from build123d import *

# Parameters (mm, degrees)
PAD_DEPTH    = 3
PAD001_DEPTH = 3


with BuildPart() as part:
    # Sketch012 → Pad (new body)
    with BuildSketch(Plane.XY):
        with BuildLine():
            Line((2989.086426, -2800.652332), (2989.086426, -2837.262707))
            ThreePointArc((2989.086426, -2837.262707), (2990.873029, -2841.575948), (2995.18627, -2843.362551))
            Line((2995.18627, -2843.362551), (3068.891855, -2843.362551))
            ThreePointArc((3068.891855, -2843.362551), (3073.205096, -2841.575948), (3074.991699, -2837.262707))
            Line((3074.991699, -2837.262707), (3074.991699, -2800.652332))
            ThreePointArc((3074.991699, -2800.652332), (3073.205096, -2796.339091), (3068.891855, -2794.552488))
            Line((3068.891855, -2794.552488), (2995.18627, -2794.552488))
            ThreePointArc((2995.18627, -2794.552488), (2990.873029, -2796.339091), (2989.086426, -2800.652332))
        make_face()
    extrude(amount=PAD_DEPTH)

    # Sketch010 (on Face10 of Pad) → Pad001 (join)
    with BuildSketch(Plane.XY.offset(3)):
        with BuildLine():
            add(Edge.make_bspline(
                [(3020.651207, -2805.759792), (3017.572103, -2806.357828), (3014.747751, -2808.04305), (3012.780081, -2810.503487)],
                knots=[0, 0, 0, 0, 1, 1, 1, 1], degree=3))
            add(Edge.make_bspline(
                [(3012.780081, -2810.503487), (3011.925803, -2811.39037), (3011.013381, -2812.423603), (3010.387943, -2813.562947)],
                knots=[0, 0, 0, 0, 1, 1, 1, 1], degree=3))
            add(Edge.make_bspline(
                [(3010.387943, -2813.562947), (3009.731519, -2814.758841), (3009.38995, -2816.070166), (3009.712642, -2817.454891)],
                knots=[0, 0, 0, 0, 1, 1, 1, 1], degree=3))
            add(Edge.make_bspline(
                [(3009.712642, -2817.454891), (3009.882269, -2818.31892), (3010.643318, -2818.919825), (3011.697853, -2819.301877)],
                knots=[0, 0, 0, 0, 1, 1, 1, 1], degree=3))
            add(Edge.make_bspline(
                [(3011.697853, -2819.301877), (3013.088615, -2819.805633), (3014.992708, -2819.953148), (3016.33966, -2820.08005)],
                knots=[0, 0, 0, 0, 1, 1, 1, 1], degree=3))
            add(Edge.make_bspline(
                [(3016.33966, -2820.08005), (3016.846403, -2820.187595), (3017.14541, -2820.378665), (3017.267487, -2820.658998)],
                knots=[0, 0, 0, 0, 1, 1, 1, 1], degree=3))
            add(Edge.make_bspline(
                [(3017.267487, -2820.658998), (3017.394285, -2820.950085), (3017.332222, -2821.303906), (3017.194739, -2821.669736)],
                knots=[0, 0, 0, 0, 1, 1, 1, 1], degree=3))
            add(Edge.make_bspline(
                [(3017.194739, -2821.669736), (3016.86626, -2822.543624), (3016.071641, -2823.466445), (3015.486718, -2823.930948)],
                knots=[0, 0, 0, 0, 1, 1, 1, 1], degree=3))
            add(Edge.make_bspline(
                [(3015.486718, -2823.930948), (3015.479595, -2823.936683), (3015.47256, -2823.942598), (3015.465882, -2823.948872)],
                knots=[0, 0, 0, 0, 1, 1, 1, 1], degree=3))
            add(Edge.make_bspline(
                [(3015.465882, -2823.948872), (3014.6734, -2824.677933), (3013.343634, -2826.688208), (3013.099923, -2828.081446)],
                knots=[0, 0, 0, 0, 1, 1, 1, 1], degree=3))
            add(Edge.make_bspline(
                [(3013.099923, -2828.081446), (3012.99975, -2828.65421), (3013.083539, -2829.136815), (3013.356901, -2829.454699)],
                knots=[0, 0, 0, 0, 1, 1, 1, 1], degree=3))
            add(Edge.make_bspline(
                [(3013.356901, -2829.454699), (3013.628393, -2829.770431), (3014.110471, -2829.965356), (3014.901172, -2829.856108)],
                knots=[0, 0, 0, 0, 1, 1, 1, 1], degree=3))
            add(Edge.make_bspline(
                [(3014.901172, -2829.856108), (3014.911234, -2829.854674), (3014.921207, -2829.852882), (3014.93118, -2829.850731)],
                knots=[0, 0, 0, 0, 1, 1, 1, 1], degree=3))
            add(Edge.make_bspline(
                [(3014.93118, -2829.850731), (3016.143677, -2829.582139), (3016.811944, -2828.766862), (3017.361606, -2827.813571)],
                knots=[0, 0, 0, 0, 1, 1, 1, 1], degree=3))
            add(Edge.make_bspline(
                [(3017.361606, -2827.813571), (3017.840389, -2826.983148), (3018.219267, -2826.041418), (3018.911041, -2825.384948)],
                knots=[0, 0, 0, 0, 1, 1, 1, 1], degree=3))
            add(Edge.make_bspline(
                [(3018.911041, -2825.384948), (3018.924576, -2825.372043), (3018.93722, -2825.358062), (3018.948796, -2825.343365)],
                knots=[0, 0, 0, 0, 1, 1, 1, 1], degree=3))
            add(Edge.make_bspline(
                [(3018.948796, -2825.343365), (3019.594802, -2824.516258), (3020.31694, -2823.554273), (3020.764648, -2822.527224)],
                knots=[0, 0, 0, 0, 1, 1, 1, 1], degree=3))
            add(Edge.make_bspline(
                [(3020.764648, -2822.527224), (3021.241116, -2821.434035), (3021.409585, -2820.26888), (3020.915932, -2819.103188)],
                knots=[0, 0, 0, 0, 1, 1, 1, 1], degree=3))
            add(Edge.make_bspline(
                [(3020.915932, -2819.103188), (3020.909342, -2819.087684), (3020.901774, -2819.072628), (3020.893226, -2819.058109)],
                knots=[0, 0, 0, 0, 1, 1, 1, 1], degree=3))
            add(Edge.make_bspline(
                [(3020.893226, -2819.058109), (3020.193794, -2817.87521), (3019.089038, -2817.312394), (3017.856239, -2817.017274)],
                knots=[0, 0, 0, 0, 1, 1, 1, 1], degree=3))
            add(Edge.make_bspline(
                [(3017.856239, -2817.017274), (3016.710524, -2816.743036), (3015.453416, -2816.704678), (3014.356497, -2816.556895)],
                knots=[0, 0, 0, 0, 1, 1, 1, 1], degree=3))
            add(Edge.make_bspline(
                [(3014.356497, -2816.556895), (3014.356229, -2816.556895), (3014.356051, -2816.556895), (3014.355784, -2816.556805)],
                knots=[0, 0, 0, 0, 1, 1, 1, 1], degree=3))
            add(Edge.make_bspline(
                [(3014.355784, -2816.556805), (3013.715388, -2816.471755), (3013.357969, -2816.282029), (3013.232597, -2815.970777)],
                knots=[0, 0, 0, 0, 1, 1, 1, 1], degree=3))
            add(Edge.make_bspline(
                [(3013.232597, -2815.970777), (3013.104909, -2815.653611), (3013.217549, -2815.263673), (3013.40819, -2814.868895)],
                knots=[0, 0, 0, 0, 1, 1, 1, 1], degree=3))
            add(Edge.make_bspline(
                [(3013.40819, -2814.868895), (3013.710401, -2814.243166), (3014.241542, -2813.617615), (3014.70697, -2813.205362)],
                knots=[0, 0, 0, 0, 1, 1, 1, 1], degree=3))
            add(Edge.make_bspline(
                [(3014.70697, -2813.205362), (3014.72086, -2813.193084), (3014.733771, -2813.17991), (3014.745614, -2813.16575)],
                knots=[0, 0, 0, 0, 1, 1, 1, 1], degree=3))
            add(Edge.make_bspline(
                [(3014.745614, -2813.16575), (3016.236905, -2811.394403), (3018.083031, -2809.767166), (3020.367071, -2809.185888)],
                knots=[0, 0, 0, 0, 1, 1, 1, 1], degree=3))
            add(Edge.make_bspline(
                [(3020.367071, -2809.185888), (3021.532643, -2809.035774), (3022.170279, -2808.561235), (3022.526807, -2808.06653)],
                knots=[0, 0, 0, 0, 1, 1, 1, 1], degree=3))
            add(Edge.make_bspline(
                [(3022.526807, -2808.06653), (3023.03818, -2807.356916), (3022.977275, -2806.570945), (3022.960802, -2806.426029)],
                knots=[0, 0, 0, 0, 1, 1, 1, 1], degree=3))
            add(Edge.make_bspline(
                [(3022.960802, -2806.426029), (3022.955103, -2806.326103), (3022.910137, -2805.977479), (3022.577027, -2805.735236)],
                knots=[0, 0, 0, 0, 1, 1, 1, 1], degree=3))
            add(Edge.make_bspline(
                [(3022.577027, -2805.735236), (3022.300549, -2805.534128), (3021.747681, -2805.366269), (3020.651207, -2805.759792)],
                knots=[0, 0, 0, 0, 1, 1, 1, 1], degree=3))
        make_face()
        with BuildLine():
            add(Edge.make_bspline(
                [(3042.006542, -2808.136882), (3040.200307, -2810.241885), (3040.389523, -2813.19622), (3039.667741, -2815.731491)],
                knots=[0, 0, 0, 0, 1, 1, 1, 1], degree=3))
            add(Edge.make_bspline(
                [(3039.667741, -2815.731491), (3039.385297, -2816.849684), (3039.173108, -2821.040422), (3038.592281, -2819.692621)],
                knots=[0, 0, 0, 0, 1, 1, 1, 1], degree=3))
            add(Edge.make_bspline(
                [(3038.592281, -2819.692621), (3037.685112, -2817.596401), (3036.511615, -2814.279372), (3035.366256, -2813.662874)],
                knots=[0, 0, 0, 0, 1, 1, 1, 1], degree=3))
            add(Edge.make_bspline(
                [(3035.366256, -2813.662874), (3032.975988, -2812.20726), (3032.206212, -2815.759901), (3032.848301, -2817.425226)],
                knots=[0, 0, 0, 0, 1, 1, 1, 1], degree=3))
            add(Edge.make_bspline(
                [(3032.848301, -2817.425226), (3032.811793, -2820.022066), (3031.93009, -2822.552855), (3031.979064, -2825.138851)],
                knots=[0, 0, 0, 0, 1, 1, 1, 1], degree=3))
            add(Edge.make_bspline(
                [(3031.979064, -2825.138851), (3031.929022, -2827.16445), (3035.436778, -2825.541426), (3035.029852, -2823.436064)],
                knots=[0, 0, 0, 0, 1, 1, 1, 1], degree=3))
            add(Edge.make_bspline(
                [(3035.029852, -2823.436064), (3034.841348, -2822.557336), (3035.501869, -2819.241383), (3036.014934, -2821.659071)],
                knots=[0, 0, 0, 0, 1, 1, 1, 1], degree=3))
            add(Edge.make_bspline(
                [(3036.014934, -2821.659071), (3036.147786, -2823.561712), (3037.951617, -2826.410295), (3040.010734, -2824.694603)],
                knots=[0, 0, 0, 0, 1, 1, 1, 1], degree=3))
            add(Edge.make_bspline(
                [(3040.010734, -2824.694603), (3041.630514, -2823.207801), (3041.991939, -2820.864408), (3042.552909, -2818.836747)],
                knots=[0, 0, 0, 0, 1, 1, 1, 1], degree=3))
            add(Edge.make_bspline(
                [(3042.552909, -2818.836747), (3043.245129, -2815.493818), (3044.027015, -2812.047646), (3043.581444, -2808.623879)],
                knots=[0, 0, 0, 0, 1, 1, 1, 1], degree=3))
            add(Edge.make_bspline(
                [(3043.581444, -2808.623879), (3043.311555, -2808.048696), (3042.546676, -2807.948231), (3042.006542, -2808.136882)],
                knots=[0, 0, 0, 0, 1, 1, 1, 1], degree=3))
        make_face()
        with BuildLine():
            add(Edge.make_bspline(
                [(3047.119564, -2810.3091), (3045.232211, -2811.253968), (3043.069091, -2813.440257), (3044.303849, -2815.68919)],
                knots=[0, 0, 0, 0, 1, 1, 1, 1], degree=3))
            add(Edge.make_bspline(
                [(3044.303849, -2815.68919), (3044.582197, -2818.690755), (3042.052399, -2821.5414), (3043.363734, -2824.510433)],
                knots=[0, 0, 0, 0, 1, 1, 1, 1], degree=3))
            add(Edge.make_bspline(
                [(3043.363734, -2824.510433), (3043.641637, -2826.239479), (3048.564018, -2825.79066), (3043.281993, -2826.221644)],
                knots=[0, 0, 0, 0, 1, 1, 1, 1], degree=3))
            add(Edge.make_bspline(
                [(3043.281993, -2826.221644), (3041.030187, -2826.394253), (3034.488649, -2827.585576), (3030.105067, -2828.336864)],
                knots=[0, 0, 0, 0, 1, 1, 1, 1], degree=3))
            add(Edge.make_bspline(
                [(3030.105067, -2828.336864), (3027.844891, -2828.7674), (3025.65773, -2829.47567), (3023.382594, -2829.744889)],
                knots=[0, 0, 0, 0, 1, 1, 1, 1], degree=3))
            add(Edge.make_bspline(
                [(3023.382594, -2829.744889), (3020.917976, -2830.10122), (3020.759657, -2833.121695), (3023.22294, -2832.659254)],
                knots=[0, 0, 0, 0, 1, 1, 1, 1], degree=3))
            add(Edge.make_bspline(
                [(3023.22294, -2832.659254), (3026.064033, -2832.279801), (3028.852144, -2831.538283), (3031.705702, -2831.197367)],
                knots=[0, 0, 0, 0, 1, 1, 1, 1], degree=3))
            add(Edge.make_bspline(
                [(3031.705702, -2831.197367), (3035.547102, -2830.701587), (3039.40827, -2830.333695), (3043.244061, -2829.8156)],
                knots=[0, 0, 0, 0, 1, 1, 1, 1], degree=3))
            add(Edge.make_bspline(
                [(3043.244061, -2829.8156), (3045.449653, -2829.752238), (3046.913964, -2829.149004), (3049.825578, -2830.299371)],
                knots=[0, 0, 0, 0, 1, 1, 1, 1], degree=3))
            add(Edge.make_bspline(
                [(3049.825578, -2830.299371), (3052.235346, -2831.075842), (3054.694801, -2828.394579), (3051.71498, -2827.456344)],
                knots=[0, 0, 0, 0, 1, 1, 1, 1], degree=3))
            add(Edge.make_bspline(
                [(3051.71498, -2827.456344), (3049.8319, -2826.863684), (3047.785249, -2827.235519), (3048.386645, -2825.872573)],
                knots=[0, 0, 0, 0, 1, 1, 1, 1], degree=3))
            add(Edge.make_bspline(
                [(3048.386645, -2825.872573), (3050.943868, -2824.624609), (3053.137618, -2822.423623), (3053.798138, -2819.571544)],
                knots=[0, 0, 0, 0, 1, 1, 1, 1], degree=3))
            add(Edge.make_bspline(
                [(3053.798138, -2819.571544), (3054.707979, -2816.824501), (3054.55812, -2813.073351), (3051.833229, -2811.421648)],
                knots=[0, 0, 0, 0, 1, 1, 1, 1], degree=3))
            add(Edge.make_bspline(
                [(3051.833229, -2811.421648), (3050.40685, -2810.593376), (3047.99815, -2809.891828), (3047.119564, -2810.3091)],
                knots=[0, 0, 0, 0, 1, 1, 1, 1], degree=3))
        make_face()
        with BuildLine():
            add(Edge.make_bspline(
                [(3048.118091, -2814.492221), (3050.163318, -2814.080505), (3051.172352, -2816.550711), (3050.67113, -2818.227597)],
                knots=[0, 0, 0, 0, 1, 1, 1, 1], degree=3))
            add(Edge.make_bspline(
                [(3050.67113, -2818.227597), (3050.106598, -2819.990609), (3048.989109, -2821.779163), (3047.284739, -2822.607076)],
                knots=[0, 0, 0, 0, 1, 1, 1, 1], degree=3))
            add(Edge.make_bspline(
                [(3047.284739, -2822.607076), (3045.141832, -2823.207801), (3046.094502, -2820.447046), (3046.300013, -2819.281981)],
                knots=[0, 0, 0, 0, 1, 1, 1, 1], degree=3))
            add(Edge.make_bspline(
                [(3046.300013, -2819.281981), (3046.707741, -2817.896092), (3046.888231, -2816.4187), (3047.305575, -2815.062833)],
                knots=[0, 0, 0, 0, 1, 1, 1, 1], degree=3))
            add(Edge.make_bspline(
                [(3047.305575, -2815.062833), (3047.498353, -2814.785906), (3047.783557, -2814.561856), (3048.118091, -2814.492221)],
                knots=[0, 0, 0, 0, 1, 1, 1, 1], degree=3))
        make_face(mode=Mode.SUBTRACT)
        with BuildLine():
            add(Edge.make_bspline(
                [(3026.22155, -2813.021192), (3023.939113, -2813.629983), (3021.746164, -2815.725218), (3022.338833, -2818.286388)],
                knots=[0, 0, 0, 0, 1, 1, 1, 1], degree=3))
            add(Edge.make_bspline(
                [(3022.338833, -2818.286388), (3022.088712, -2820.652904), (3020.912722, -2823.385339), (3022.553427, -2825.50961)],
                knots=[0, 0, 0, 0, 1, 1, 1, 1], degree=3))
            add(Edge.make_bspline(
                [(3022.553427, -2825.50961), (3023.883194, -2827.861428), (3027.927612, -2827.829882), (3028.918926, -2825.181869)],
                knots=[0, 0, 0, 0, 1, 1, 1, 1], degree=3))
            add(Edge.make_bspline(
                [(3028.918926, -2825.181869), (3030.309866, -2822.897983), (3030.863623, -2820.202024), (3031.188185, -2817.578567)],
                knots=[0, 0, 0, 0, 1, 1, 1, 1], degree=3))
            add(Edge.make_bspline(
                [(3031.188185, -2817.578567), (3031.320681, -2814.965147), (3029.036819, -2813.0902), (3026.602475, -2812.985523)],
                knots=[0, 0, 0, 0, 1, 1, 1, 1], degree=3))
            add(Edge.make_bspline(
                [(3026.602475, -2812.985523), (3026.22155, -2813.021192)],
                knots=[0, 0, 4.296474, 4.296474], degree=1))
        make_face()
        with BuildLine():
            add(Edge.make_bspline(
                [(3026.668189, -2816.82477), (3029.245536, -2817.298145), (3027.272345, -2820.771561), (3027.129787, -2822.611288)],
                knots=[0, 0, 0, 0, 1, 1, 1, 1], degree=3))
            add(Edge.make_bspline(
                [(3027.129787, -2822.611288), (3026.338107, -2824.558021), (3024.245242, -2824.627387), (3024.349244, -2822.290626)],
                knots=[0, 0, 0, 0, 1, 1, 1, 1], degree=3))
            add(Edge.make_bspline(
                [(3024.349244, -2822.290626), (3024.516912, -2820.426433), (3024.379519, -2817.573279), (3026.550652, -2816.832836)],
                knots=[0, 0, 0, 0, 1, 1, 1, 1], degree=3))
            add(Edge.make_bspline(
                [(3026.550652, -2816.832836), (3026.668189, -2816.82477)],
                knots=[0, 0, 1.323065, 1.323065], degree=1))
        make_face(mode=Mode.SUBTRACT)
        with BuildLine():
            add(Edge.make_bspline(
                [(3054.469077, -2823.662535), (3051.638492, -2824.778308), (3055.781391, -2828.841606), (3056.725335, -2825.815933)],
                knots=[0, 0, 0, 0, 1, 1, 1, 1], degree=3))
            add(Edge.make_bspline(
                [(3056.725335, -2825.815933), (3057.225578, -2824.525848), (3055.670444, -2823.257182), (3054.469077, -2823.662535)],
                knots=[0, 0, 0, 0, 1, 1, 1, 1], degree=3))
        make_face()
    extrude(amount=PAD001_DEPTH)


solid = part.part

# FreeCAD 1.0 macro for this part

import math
import FreeCAD as App
import Part
import Sketcher

V = App.Vector
Q = App.Units.Quantity

doc = App.newDocument("Part")
body = doc.addObject("PartDesign::Body", "Body")

sketch1 = body.newObject("Sketcher::SketchObject", "Sketch")
sketch1.AttachmentSupport = (doc.getObject("XY_Plane"), [""])
sketch1.MapMode = "FlatFace"
sketch1.addGeometry([
    Part.LineSegment(V(2989, -2801, 0), V(2989, -2837, 0)),
    Part.ArcOfCircle(Part.Circle(V(2995, -2837, 0), V(0, 0, 1), 6), math.radians(-180), math.radians(-90)),
    Part.LineSegment(V(2995, -2843, 0), V(3069, -2843, 0)),
    Part.ArcOfCircle(Part.Circle(V(3069, -2837, 0), V(0, 0, 1), 6), math.radians(-90), math.radians(0)),
    Part.LineSegment(V(3075, -2837, 0), V(3075, -2801, 0)),
    Part.ArcOfCircle(Part.Circle(V(3069, -2801, 0), V(0, 0, 1), 6), math.radians(0), math.radians(90)),
    Part.LineSegment(V(3069, -2795, 0), V(2995, -2795, 0)),
    Part.ArcOfCircle(Part.Circle(V(2995, -2801, 0), V(0, 0, 1), 6), math.radians(90), math.radians(180)),
], False)
sketch1.addConstraint([
    Sketcher.Constraint("Tangent", 0, 2, 1, 1),
    Sketcher.Constraint("Tangent", 1, 2, 2, 1),
    Sketcher.Constraint("Tangent", 2, 2, 3, 1),
    Sketcher.Constraint("Tangent", 3, 2, 4, 1),
    Sketcher.Constraint("Tangent", 4, 2, 5, 1),
    Sketcher.Constraint("Tangent", 5, 2, 6, 1),
    Sketcher.Constraint("Tangent", 6, 2, 7, 1),
    Sketcher.Constraint("Tangent", 7, 2, 0, 1),
    Sketcher.Constraint("Vertical", 0),
    Sketcher.Constraint("Horizontal", 2),
    Sketcher.Constraint("Vertical", 4),
    Sketcher.Constraint("Horizontal", 6),
    Sketcher.Constraint("Equal", 1, 3),
    Sketcher.Constraint("Equal", 3, 5),
    Sketcher.Constraint("Equal", 5, 7),
    Sketcher.Constraint("Radius", 1, Q("6.099844 mm")),
    Sketcher.Constraint("DistanceX", -1, 1, 3, 2, Q("3074.991699 mm")),
    Sketcher.Constraint("DistanceX", 2, 1, 2, 2, Q("73.705585 mm")),
    Sketcher.Constraint("DistanceY", 0, 2, 0, 1, Q("36.610375 mm")),
    Sketcher.Constraint("DistanceY", 1, 2, -1, 1, Q("2843.362551 mm")),
])
pad1 = body.newObject("PartDesign::Pad", "Pad")
pad1.Profile = sketch1
pad1.Length = 3

sketch2 = body.newObject("Sketcher::SketchObject", "Sketch001")
sketch2.AttachmentSupport = (doc.getObject("XY_Plane"), [""])
sketch2.MapMode = "FlatFace"
sketch2.AttachmentOffset = App.Placement(V(0, 0, 3), App.Rotation())
sketch2.addGeometry([
    Part.BSplineCurve([V(3020.651207, -2805.759792, 0), V(3017.572103, -2806.357828, 0), V(3014.747751, -2808.04305, 0), V(3012.780081, -2810.503487, 0)], [4, 4], [0, 1], False, 3, [1, 1, 1, 1], False),
    Part.BSplineCurve([V(3012.780081, -2810.503487, 0), V(3011.925803, -2811.39037, 0), V(3011.013381, -2812.423603, 0), V(3010.387943, -2813.562947, 0)], [4, 4], [0, 1], False, 3, [1, 1, 1, 1], False),
    Part.BSplineCurve([V(3010.387943, -2813.562947, 0), V(3009.731519, -2814.758841, 0), V(3009.38995, -2816.070166, 0), V(3009.712642, -2817.454891, 0)], [4, 4], [0, 1], False, 3, [1, 1, 1, 1], False),
    Part.BSplineCurve([V(3009.712642, -2817.454891, 0), V(3009.882269, -2818.31892, 0), V(3010.643318, -2818.919825, 0), V(3011.697853, -2819.301877, 0)], [4, 4], [0, 1], False, 3, [1, 1, 1, 1], False),
    Part.BSplineCurve([V(3011.697853, -2819.301877, 0), V(3013.088615, -2819.805633, 0), V(3014.992708, -2819.953148, 0), V(3016.33966, -2820.08005, 0)], [4, 4], [0, 1], False, 3, [1, 1, 1, 1], False),
    Part.BSplineCurve([V(3016.33966, -2820.08005, 0), V(3016.846403, -2820.187595, 0), V(3017.14541, -2820.378665, 0), V(3017.267487, -2820.658998, 0)], [4, 4], [0, 1], False, 3, [1, 1, 1, 1], False),
    Part.BSplineCurve([V(3017.267487, -2820.658998, 0), V(3017.394285, -2820.950085, 0), V(3017.332222, -2821.303906, 0), V(3017.194739, -2821.669736, 0)], [4, 4], [0, 1], False, 3, [1, 1, 1, 1], False),
    Part.BSplineCurve([V(3017.194739, -2821.669736, 0), V(3016.86626, -2822.543624, 0), V(3016.071641, -2823.466445, 0), V(3015.486718, -2823.930948, 0)], [4, 4], [0, 1], False, 3, [1, 1, 1, 1], False),
    Part.BSplineCurve([V(3015.486718, -2823.930948, 0), V(3015.479595, -2823.936683, 0), V(3015.47256, -2823.942598, 0), V(3015.465882, -2823.948872, 0)], [4, 4], [0, 1], False, 3, [1, 1, 1, 1], False),
    Part.BSplineCurve([V(3015.465882, -2823.948872, 0), V(3014.6734, -2824.677933, 0), V(3013.343634, -2826.688208, 0), V(3013.099923, -2828.081446, 0)], [4, 4], [0, 1], False, 3, [1, 1, 1, 1], False),
    Part.BSplineCurve([V(3013.099923, -2828.081446, 0), V(3012.99975, -2828.65421, 0), V(3013.083539, -2829.136815, 0), V(3013.356901, -2829.454699, 0)], [4, 4], [0, 1], False, 3, [1, 1, 1, 1], False),
    Part.BSplineCurve([V(3013.356901, -2829.454699, 0), V(3013.628393, -2829.770431, 0), V(3014.110471, -2829.965356, 0), V(3014.901172, -2829.856108, 0)], [4, 4], [0, 1], False, 3, [1, 1, 1, 1], False),
    Part.BSplineCurve([V(3014.901172, -2829.856108, 0), V(3014.911234, -2829.854674, 0), V(3014.921207, -2829.852882, 0), V(3014.93118, -2829.850731, 0)], [4, 4], [0, 1], False, 3, [1, 1, 1, 1], False),
    Part.BSplineCurve([V(3014.93118, -2829.850731, 0), V(3016.143677, -2829.582139, 0), V(3016.811944, -2828.766862, 0), V(3017.361606, -2827.813571, 0)], [4, 4], [0, 1], False, 3, [1, 1, 1, 1], False),
    Part.BSplineCurve([V(3017.361606, -2827.813571, 0), V(3017.840389, -2826.983148, 0), V(3018.219267, -2826.041418, 0), V(3018.911041, -2825.384948, 0)], [4, 4], [0, 1], False, 3, [1, 1, 1, 1], False),
    Part.BSplineCurve([V(3018.911041, -2825.384948, 0), V(3018.924576, -2825.372043, 0), V(3018.93722, -2825.358062, 0), V(3018.948796, -2825.343365, 0)], [4, 4], [0, 1], False, 3, [1, 1, 1, 1], False),
    Part.BSplineCurve([V(3018.948796, -2825.343365, 0), V(3019.594802, -2824.516258, 0), V(3020.31694, -2823.554273, 0), V(3020.764648, -2822.527224, 0)], [4, 4], [0, 1], False, 3, [1, 1, 1, 1], False),
    Part.BSplineCurve([V(3020.764648, -2822.527224, 0), V(3021.241116, -2821.434035, 0), V(3021.409585, -2820.26888, 0), V(3020.915932, -2819.103188, 0)], [4, 4], [0, 1], False, 3, [1, 1, 1, 1], False),
    Part.BSplineCurve([V(3020.915932, -2819.103188, 0), V(3020.909342, -2819.087684, 0), V(3020.901774, -2819.072628, 0), V(3020.893226, -2819.058109, 0)], [4, 4], [0, 1], False, 3, [1, 1, 1, 1], False),
    Part.BSplineCurve([V(3020.893226, -2819.058109, 0), V(3020.193794, -2817.87521, 0), V(3019.089038, -2817.312394, 0), V(3017.856239, -2817.017274, 0)], [4, 4], [0, 1], False, 3, [1, 1, 1, 1], False),
    Part.BSplineCurve([V(3017.856239, -2817.017274, 0), V(3016.710524, -2816.743036, 0), V(3015.453416, -2816.704678, 0), V(3014.356497, -2816.556895, 0)], [4, 4], [0, 1], False, 3, [1, 1, 1, 1], False),
    Part.BSplineCurve([V(3014.356497, -2816.556895, 0), V(3014.356229, -2816.556895, 0), V(3014.356051, -2816.556895, 0), V(3014.355784, -2816.556805, 0)], [4, 4], [0, 1], False, 3, [1, 1, 1, 1], False),
    Part.BSplineCurve([V(3014.355784, -2816.556805, 0), V(3013.715388, -2816.471755, 0), V(3013.357969, -2816.282029, 0), V(3013.232597, -2815.970777, 0)], [4, 4], [0, 1], False, 3, [1, 1, 1, 1], False),
    Part.BSplineCurve([V(3013.232597, -2815.970777, 0), V(3013.104909, -2815.653611, 0), V(3013.217549, -2815.263673, 0), V(3013.40819, -2814.868895, 0)], [4, 4], [0, 1], False, 3, [1, 1, 1, 1], False),
    Part.BSplineCurve([V(3013.40819, -2814.868895, 0), V(3013.710401, -2814.243166, 0), V(3014.241542, -2813.617615, 0), V(3014.70697, -2813.205362, 0)], [4, 4], [0, 1], False, 3, [1, 1, 1, 1], False),
    Part.BSplineCurve([V(3014.70697, -2813.205362, 0), V(3014.72086, -2813.193084, 0), V(3014.733771, -2813.17991, 0), V(3014.745614, -2813.16575, 0)], [4, 4], [0, 1], False, 3, [1, 1, 1, 1], False),
    Part.BSplineCurve([V(3014.745614, -2813.16575, 0), V(3016.236905, -2811.394403, 0), V(3018.083031, -2809.767166, 0), V(3020.367071, -2809.185888, 0)], [4, 4], [0, 1], False, 3, [1, 1, 1, 1], False),
    Part.BSplineCurve([V(3020.367071, -2809.185888, 0), V(3021.532643, -2809.035774, 0), V(3022.170279, -2808.561235, 0), V(3022.526807, -2808.06653, 0)], [4, 4], [0, 1], False, 3, [1, 1, 1, 1], False),
    Part.BSplineCurve([V(3022.526807, -2808.06653, 0), V(3023.03818, -2807.356916, 0), V(3022.977275, -2806.570945, 0), V(3022.960802, -2806.426029, 0)], [4, 4], [0, 1], False, 3, [1, 1, 1, 1], False),
    Part.BSplineCurve([V(3022.960802, -2806.426029, 0), V(3022.955103, -2806.326103, 0), V(3022.910137, -2805.977479, 0), V(3022.577027, -2805.735236, 0)], [4, 4], [0, 1], False, 3, [1, 1, 1, 1], False),
    Part.BSplineCurve([V(3022.577027, -2805.735236, 0), V(3022.300549, -2805.534128, 0), V(3021.747681, -2805.366269, 0), V(3020.651207, -2805.759792, 0)], [4, 4], [0, 1], False, 3, [1, 1, 1, 1], False),
    Part.BSplineCurve([V(3042.006542, -2808.136882, 0), V(3040.200307, -2810.241885, 0), V(3040.389523, -2813.19622, 0), V(3039.667741, -2815.731491, 0)], [4, 4], [0, 1], False, 3, [1, 1, 1, 1], False),
    Part.BSplineCurve([V(3039.667741, -2815.731491, 0), V(3039.385297, -2816.849684, 0), V(3039.173108, -2821.040422, 0), V(3038.592281, -2819.692621, 0)], [4, 4], [0, 1], False, 3, [1, 1, 1, 1], False),
    Part.BSplineCurve([V(3038.592281, -2819.692621, 0), V(3037.685112, -2817.596401, 0), V(3036.511615, -2814.279372, 0), V(3035.366256, -2813.662874, 0)], [4, 4], [0, 1], False, 3, [1, 1, 1, 1], False),
    Part.BSplineCurve([V(3035.366256, -2813.662874, 0), V(3032.975988, -2812.20726, 0), V(3032.206212, -2815.759901, 0), V(3032.848301, -2817.425226, 0)], [4, 4], [0, 1], False, 3, [1, 1, 1, 1], False),
    Part.BSplineCurve([V(3032.848301, -2817.425226, 0), V(3032.811793, -2820.022066, 0), V(3031.93009, -2822.552855, 0), V(3031.979064, -2825.138851, 0)], [4, 4], [0, 1], False, 3, [1, 1, 1, 1], False),
    Part.BSplineCurve([V(3031.979064, -2825.138851, 0), V(3031.929022, -2827.16445, 0), V(3035.436778, -2825.541426, 0), V(3035.029852, -2823.436064, 0)], [4, 4], [0, 1], False, 3, [1, 1, 1, 1], False),
    Part.BSplineCurve([V(3035.029852, -2823.436064, 0), V(3034.841348, -2822.557336, 0), V(3035.501869, -2819.241383, 0), V(3036.014934, -2821.659071, 0)], [4, 4], [0, 1], False, 3, [1, 1, 1, 1], False),
    Part.BSplineCurve([V(3036.014934, -2821.659071, 0), V(3036.147786, -2823.561712, 0), V(3037.951617, -2826.410295, 0), V(3040.010734, -2824.694603, 0)], [4, 4], [0, 1], False, 3, [1, 1, 1, 1], False),
    Part.BSplineCurve([V(3040.010734, -2824.694603, 0), V(3041.630514, -2823.207801, 0), V(3041.991939, -2820.864408, 0), V(3042.552909, -2818.836747, 0)], [4, 4], [0, 1], False, 3, [1, 1, 1, 1], False),
    Part.BSplineCurve([V(3042.552909, -2818.836747, 0), V(3043.245129, -2815.493818, 0), V(3044.027015, -2812.047646, 0), V(3043.581444, -2808.623879, 0)], [4, 4], [0, 1], False, 3, [1, 1, 1, 1], False),
    Part.BSplineCurve([V(3043.581444, -2808.623879, 0), V(3043.311555, -2808.048696, 0), V(3042.546676, -2807.948231, 0), V(3042.006542, -2808.136882, 0)], [4, 4], [0, 1], False, 3, [1, 1, 1, 1], False),
    Part.BSplineCurve([V(3047.119564, -2810.3091, 0), V(3045.232211, -2811.253968, 0), V(3043.069091, -2813.440257, 0), V(3044.303849, -2815.68919, 0)], [4, 4], [0, 1], False, 3, [1, 1, 1, 1], False),
    Part.BSplineCurve([V(3044.303849, -2815.68919, 0), V(3044.582197, -2818.690755, 0), V(3042.052399, -2821.5414, 0), V(3043.363734, -2824.510433, 0)], [4, 4], [0, 1], False, 3, [1, 1, 1, 1], False),
    Part.BSplineCurve([V(3043.363734, -2824.510433, 0), V(3043.641637, -2826.239479, 0), V(3048.564018, -2825.79066, 0), V(3043.281993, -2826.221644, 0)], [4, 4], [0, 1], False, 3, [1, 1, 1, 1], False),
    Part.BSplineCurve([V(3043.281993, -2826.221644, 0), V(3041.030187, -2826.394253, 0), V(3034.488649, -2827.585576, 0), V(3030.105067, -2828.336864, 0)], [4, 4], [0, 1], False, 3, [1, 1, 1, 1], False),
    Part.BSplineCurve([V(3030.105067, -2828.336864, 0), V(3027.844891, -2828.7674, 0), V(3025.65773, -2829.47567, 0), V(3023.382594, -2829.744889, 0)], [4, 4], [0, 1], False, 3, [1, 1, 1, 1], False),
    Part.BSplineCurve([V(3023.382594, -2829.744889, 0), V(3020.917976, -2830.10122, 0), V(3020.759657, -2833.121695, 0), V(3023.22294, -2832.659254, 0)], [4, 4], [0, 1], False, 3, [1, 1, 1, 1], False),
    Part.BSplineCurve([V(3023.22294, -2832.659254, 0), V(3026.064033, -2832.279801, 0), V(3028.852144, -2831.538283, 0), V(3031.705702, -2831.197367, 0)], [4, 4], [0, 1], False, 3, [1, 1, 1, 1], False),
    Part.BSplineCurve([V(3031.705702, -2831.197367, 0), V(3035.547102, -2830.701587, 0), V(3039.40827, -2830.333695, 0), V(3043.244061, -2829.8156, 0)], [4, 4], [0, 1], False, 3, [1, 1, 1, 1], False),
    Part.BSplineCurve([V(3043.244061, -2829.8156, 0), V(3045.449653, -2829.752238, 0), V(3046.913964, -2829.149004, 0), V(3049.825578, -2830.299371, 0)], [4, 4], [0, 1], False, 3, [1, 1, 1, 1], False),
    Part.BSplineCurve([V(3049.825578, -2830.299371, 0), V(3052.235346, -2831.075842, 0), V(3054.694801, -2828.394579, 0), V(3051.71498, -2827.456344, 0)], [4, 4], [0, 1], False, 3, [1, 1, 1, 1], False),
    Part.BSplineCurve([V(3051.71498, -2827.456344, 0), V(3049.8319, -2826.863684, 0), V(3047.785249, -2827.235519, 0), V(3048.386645, -2825.872573, 0)], [4, 4], [0, 1], False, 3, [1, 1, 1, 1], False),
    Part.BSplineCurve([V(3048.386645, -2825.872573, 0), V(3050.943868, -2824.624609, 0), V(3053.137618, -2822.423623, 0), V(3053.798138, -2819.571544, 0)], [4, 4], [0, 1], False, 3, [1, 1, 1, 1], False),
    Part.BSplineCurve([V(3053.798138, -2819.571544, 0), V(3054.707979, -2816.824501, 0), V(3054.55812, -2813.073351, 0), V(3051.833229, -2811.421648, 0)], [4, 4], [0, 1], False, 3, [1, 1, 1, 1], False),
    Part.BSplineCurve([V(3051.833229, -2811.421648, 0), V(3050.40685, -2810.593376, 0), V(3047.99815, -2809.891828, 0), V(3047.119564, -2810.3091, 0)], [4, 4], [0, 1], False, 3, [1, 1, 1, 1], False),
    Part.BSplineCurve([V(3047.305575, -2815.062833, 0), V(3047.498353, -2814.785906, 0), V(3047.783557, -2814.561856, 0), V(3048.118091, -2814.492221, 0)], [4, 4], [0, 1], False, 3, [1, 1, 1, 1], False),
    Part.BSplineCurve([V(3048.118091, -2814.492221, 0), V(3050.163318, -2814.080505, 0), V(3051.172352, -2816.550711, 0), V(3050.67113, -2818.227597, 0)], [4, 4], [0, 1], False, 3, [1, 1, 1, 1], False),
    Part.BSplineCurve([V(3050.67113, -2818.227597, 0), V(3050.106598, -2819.990609, 0), V(3048.989109, -2821.779163, 0), V(3047.284739, -2822.607076, 0)], [4, 4], [0, 1], False, 3, [1, 1, 1, 1], False),
    Part.BSplineCurve([V(3047.284739, -2822.607076, 0), V(3045.141832, -2823.207801, 0), V(3046.094502, -2820.447046, 0), V(3046.300013, -2819.281981, 0)], [4, 4], [0, 1], False, 3, [1, 1, 1, 1], False),
    Part.BSplineCurve([V(3046.300013, -2819.281981, 0), V(3046.707741, -2817.896092, 0), V(3046.888231, -2816.4187, 0), V(3047.305575, -2815.062833, 0)], [4, 4], [0, 1], False, 3, [1, 1, 1, 1], False),
    Part.BSplineCurve([V(3026.22155, -2813.021192, 0), V(3023.939113, -2813.629983, 0), V(3021.746164, -2815.725218, 0), V(3022.338833, -2818.286388, 0)], [4, 4], [0, 1], False, 3, [1, 1, 1, 1], False),
    Part.BSplineCurve([V(3022.338833, -2818.286388, 0), V(3022.088712, -2820.652904, 0), V(3020.912722, -2823.385339, 0), V(3022.553427, -2825.50961, 0)], [4, 4], [0, 1], False, 3, [1, 1, 1, 1], False),
    Part.BSplineCurve([V(3022.553427, -2825.50961, 0), V(3023.883194, -2827.861428, 0), V(3027.927612, -2827.829882, 0), V(3028.918926, -2825.181869, 0)], [4, 4], [0, 1], False, 3, [1, 1, 1, 1], False),
    Part.BSplineCurve([V(3028.918926, -2825.181869, 0), V(3030.309866, -2822.897983, 0), V(3030.863623, -2820.202024, 0), V(3031.188185, -2817.578567, 0)], [4, 4], [0, 1], False, 3, [1, 1, 1, 1], False),
    Part.BSplineCurve([V(3031.188185, -2817.578567, 0), V(3031.320681, -2814.965147, 0), V(3029.036819, -2813.0902, 0), V(3026.602475, -2812.985523, 0)], [4, 4], [0, 1], False, 3, [1, 1, 1, 1], False),
    Part.BSplineCurve([V(3026.602475, -2812.985523, 0), V(3026.22155, -2813.021192, 0)], [2, 2], [0, 4.296474], False, 1, [1, 1], False),
    Part.BSplineCurve([V(3026.550652, -2816.832836, 0), V(3026.668189, -2816.82477, 0)], [2, 2], [0, 1.323065], False, 1, [1, 1], False),
    Part.BSplineCurve([V(3026.668189, -2816.82477, 0), V(3029.245536, -2817.298145, 0), V(3027.272345, -2820.771561, 0), V(3027.129787, -2822.611288, 0)], [4, 4], [0, 1], False, 3, [1, 1, 1, 1], False),
    Part.BSplineCurve([V(3027.129787, -2822.611288, 0), V(3026.338107, -2824.558021, 0), V(3024.245242, -2824.627387, 0), V(3024.349244, -2822.290626, 0)], [4, 4], [0, 1], False, 3, [1, 1, 1, 1], False),
    Part.BSplineCurve([V(3024.349244, -2822.290626, 0), V(3024.516912, -2820.426433, 0), V(3024.379519, -2817.573279, 0), V(3026.550652, -2816.832836, 0)], [4, 4], [0, 1], False, 3, [1, 1, 1, 1], False),
    Part.BSplineCurve([V(3054.469077, -2823.662535, 0), V(3051.638492, -2824.778308, 0), V(3055.781391, -2828.841606, 0), V(3056.725335, -2825.815933, 0)], [4, 4], [0, 1], False, 3, [1, 1, 1, 1], False),
    Part.BSplineCurve([V(3056.725335, -2825.815933, 0), V(3057.225578, -2824.525848, 0), V(3055.670444, -2823.257182, 0), V(3054.469077, -2823.662535, 0)], [4, 4], [0, 1], False, 3, [1, 1, 1, 1], False),
], False)
sketch2.addConstraint([
    Sketcher.Constraint("Block", 0),
    Sketcher.Constraint("Block", 1),
    Sketcher.Constraint("Block", 2),
    Sketcher.Constraint("Block", 3),
    Sketcher.Constraint("Block", 4),
    Sketcher.Constraint("Block", 5),
    Sketcher.Constraint("Block", 6),
    Sketcher.Constraint("Block", 7),
    Sketcher.Constraint("Block", 8),
    Sketcher.Constraint("Block", 9),
    Sketcher.Constraint("Block", 10),
    Sketcher.Constraint("Block", 11),
    Sketcher.Constraint("Block", 12),
    Sketcher.Constraint("Block", 13),
    Sketcher.Constraint("Block", 14),
    Sketcher.Constraint("Block", 15),
    Sketcher.Constraint("Block", 16),
    Sketcher.Constraint("Block", 17),
    Sketcher.Constraint("Block", 18),
    Sketcher.Constraint("Block", 19),
    Sketcher.Constraint("Block", 20),
    Sketcher.Constraint("Block", 21),
    Sketcher.Constraint("Block", 22),
    Sketcher.Constraint("Block", 23),
    Sketcher.Constraint("Block", 24),
    Sketcher.Constraint("Block", 25),
    Sketcher.Constraint("Block", 26),
    Sketcher.Constraint("Block", 27),
    Sketcher.Constraint("Block", 28),
    Sketcher.Constraint("Block", 29),
    Sketcher.Constraint("Block", 30),
    Sketcher.Constraint("Block", 31),
    Sketcher.Constraint("Block", 32),
    Sketcher.Constraint("Block", 33),
    Sketcher.Constraint("Block", 34),
    Sketcher.Constraint("Block", 35),
    Sketcher.Constraint("Block", 36),
    Sketcher.Constraint("Block", 37),
    Sketcher.Constraint("Block", 38),
    Sketcher.Constraint("Block", 39),
    Sketcher.Constraint("Block", 40),
    Sketcher.Constraint("Block", 41),
    Sketcher.Constraint("Block", 42),
    Sketcher.Constraint("Block", 43),
    Sketcher.Constraint("Block", 44),
    Sketcher.Constraint("Block", 45),
    Sketcher.Constraint("Block", 46),
    Sketcher.Constraint("Block", 47),
    Sketcher.Constraint("Block", 48),
    Sketcher.Constraint("Block", 49),
    Sketcher.Constraint("Block", 50),
    Sketcher.Constraint("Block", 51),
    Sketcher.Constraint("Block", 52),
    Sketcher.Constraint("Block", 53),
    Sketcher.Constraint("Block", 54),
    Sketcher.Constraint("Block", 55),
    Sketcher.Constraint("Block", 56),
    Sketcher.Constraint("Block", 57),
    Sketcher.Constraint("Block", 58),
    Sketcher.Constraint("Block", 59),
    Sketcher.Constraint("Block", 60),
    Sketcher.Constraint("Block", 61),
    Sketcher.Constraint("Block", 62),
    Sketcher.Constraint("Block", 63),
    Sketcher.Constraint("Block", 64),
    Sketcher.Constraint("Block", 65),
    Sketcher.Constraint("Block", 66),
    Sketcher.Constraint("Block", 67),
    Sketcher.Constraint("Block", 68),
    Sketcher.Constraint("Block", 69),
    Sketcher.Constraint("Block", 70),
    Sketcher.Constraint("Block", 71),
    Sketcher.Constraint("Block", 72),
])
pad2 = body.newObject("PartDesign::Pad", "Pad001")
pad2.Profile = sketch2
pad2.Length = 3

doc.recompute()
